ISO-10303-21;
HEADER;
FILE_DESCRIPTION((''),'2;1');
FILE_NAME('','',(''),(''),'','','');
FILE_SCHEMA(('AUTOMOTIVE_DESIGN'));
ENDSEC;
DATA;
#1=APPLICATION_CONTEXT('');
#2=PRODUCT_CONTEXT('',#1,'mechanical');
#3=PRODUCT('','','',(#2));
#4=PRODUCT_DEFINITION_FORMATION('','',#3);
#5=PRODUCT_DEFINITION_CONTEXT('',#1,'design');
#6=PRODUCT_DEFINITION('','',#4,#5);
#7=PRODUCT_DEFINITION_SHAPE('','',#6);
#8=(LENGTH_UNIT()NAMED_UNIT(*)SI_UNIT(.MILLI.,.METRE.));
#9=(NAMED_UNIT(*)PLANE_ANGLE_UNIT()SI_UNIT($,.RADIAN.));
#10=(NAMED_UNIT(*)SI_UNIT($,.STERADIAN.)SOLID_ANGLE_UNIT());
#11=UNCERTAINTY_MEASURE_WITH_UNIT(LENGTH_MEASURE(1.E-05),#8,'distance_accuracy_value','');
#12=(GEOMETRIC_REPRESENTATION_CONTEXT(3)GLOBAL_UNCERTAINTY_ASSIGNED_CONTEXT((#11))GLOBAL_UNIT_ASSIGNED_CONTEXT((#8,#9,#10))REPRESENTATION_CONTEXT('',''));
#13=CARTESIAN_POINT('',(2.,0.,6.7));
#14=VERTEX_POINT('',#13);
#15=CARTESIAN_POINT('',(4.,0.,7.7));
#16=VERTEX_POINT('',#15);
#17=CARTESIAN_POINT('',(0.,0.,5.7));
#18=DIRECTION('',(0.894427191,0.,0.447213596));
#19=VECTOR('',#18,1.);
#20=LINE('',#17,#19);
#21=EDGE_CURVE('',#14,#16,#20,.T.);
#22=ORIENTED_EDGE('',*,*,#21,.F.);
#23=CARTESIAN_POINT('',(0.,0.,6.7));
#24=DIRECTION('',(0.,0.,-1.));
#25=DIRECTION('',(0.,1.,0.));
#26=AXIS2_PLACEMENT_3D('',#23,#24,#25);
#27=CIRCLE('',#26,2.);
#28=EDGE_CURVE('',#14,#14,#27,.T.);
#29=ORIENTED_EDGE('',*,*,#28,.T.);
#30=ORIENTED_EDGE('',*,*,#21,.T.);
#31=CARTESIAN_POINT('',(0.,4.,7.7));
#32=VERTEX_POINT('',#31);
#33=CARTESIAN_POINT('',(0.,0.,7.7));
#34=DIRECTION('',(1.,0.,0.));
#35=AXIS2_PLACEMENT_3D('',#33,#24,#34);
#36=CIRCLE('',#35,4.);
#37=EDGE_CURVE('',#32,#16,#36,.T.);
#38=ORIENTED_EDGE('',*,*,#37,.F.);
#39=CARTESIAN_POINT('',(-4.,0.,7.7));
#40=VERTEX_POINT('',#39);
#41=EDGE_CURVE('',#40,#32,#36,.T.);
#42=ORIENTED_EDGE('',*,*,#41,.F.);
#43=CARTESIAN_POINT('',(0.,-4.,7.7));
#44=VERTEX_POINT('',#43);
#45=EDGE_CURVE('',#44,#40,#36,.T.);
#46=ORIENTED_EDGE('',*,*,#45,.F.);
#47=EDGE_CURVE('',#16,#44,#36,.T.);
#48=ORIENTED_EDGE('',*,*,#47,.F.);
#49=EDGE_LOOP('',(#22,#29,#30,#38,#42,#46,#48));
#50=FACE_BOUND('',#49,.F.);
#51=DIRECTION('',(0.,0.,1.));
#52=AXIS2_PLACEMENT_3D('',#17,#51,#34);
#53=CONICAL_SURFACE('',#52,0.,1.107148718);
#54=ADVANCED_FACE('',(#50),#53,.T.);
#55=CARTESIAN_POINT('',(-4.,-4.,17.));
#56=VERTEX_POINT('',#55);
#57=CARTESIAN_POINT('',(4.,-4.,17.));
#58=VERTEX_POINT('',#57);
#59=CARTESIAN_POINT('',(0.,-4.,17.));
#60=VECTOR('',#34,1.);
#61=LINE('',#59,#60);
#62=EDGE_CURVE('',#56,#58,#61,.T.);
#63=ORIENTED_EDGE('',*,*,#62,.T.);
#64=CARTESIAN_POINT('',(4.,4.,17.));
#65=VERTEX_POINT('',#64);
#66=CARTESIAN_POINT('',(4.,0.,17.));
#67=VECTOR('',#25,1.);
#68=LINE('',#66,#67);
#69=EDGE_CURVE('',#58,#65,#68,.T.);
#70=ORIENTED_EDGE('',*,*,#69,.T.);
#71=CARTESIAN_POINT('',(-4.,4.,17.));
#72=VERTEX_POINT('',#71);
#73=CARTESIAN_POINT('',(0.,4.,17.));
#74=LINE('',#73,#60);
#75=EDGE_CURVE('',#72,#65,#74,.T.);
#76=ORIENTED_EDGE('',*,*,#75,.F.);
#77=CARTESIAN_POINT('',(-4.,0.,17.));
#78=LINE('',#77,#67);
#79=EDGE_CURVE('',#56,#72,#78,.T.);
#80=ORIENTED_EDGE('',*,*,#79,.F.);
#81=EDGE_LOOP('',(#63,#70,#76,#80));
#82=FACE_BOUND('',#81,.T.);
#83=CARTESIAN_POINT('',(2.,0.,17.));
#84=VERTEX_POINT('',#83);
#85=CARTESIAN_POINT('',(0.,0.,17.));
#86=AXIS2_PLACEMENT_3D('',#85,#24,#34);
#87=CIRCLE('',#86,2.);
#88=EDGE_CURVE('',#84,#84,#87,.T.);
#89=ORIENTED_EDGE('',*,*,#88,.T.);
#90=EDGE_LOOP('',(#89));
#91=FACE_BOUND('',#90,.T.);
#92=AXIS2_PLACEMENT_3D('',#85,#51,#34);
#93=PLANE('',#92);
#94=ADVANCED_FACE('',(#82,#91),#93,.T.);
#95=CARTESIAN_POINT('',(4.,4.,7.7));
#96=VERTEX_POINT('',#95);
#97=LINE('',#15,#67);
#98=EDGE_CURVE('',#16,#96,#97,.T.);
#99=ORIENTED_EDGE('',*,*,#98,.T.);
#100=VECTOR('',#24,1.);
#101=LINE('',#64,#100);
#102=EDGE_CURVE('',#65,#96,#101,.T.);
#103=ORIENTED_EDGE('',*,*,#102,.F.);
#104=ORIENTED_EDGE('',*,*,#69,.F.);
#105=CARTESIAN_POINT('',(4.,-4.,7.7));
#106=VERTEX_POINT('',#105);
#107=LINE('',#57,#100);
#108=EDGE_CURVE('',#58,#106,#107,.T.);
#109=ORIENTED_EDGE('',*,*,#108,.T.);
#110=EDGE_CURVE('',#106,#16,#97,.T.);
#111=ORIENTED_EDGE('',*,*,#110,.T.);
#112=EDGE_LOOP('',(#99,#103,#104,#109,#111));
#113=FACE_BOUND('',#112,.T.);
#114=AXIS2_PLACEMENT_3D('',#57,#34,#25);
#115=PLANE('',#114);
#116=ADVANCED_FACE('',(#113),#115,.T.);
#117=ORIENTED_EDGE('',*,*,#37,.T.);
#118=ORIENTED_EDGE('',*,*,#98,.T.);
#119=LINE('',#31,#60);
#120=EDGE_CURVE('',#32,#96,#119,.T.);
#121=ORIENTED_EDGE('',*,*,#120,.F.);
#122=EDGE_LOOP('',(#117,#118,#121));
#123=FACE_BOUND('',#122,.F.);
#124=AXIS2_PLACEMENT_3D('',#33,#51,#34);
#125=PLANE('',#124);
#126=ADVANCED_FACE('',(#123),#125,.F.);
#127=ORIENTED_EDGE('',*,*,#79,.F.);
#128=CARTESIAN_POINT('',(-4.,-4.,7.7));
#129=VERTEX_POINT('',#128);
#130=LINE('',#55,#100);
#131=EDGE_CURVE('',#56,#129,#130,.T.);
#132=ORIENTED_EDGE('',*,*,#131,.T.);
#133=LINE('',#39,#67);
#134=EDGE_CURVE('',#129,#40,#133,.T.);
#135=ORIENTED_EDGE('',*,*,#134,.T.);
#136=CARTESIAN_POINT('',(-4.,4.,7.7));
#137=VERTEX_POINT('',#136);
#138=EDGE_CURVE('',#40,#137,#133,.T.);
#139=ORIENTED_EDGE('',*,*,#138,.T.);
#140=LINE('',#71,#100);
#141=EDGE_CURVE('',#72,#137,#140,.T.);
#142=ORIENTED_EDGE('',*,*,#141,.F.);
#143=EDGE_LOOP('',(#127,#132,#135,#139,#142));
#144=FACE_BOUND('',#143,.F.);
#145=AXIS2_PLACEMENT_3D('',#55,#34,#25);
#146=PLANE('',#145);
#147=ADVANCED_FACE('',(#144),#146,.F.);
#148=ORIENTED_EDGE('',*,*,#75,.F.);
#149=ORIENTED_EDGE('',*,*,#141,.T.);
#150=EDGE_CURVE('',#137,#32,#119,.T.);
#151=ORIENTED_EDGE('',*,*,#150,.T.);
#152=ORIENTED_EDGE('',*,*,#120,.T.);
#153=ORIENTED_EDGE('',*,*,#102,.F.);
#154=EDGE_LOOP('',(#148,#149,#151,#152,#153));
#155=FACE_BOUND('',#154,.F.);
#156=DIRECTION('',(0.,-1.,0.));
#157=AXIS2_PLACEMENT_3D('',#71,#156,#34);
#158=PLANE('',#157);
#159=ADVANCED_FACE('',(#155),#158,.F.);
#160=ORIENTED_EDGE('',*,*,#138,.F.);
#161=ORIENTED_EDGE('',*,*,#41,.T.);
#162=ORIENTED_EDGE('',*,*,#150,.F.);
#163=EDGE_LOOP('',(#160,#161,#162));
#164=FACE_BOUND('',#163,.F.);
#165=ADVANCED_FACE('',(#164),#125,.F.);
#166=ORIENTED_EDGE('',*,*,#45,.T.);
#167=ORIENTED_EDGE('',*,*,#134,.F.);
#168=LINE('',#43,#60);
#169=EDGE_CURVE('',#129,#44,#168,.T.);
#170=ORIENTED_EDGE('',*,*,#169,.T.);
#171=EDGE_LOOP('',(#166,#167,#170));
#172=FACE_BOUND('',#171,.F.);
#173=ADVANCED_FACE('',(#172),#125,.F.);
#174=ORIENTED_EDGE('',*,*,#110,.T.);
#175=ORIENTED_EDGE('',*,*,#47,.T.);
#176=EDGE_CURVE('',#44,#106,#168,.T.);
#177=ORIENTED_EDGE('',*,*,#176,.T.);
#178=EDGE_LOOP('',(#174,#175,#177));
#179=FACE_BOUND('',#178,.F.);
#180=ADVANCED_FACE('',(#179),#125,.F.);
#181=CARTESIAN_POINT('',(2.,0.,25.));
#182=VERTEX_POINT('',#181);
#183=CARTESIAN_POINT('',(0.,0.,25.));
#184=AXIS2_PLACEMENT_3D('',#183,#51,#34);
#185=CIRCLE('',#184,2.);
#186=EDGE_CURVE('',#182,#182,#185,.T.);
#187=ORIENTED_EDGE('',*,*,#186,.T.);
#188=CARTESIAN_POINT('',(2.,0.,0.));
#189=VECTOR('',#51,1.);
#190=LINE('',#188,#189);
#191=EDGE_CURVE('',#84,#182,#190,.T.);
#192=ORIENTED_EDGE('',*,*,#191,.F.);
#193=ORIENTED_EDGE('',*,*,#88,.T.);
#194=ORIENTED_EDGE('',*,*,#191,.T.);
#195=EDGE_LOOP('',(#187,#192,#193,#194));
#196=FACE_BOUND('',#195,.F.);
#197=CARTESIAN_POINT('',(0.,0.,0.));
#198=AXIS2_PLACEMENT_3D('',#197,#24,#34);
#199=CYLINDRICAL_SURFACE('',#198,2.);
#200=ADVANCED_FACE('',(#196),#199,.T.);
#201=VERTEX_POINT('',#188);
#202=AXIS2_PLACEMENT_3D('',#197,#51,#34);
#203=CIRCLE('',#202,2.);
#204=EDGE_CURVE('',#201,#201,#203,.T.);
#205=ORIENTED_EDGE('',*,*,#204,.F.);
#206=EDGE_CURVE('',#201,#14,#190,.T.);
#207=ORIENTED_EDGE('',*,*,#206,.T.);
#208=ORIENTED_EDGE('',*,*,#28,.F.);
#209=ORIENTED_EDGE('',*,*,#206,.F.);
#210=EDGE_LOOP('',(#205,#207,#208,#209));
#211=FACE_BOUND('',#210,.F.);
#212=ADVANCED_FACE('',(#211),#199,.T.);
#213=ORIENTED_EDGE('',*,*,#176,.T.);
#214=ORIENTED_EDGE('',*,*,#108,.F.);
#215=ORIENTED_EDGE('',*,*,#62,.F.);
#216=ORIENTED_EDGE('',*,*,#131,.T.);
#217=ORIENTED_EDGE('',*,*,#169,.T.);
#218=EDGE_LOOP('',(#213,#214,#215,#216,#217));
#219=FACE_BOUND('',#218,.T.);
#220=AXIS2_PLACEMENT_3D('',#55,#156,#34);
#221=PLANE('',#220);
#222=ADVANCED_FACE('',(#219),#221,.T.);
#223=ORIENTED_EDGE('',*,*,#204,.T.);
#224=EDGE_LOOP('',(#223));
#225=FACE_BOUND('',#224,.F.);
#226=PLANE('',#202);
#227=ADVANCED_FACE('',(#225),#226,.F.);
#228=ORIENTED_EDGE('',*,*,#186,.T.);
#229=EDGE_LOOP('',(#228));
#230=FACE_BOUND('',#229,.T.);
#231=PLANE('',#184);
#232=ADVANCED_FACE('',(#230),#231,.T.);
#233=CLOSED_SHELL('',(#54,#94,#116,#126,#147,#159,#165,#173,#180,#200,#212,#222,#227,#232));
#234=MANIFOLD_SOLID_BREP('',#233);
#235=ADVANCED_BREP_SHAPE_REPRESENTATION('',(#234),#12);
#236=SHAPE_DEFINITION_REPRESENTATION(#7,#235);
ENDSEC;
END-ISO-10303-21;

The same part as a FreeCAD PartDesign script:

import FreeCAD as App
import Part
import Sketcher
from FreeCAD import Vector

doc = App.newDocument("Part")
body = doc.addObject("PartDesign::Body", "Body")

sketch1 = doc.addObject("Sketcher::SketchObject", "Sketch")
body.addObject(sketch1)
sketch1.AttachmentSupport = (doc.XY_Plane, [""])
sketch1.MapMode = "FlatFace"
sketch1.addGeometry(Part.Circle(Vector(0, 0, 0), Vector(0, 0, 1), 2), False)
sketch1.addConstraint([
    Sketcher.Constraint("Coincident", 0, 3, -1, 1),
    Sketcher.Constraint("Diameter", 0, 4.0),
])
pad1 = doc.addObject("PartDesign::Pad", "Pad")
body.addObject(pad1)
pad1.Profile = sketch1
pad1.Length = 25

sketch2 = doc.addObject("Sketcher::SketchObject", "Sketch001")
body.addObject(sketch2)
sketch2.AttachmentSupport = (doc.XY_Plane, [""])
sketch2.MapMode = "FlatFace"
sketch2.AttachmentOffset = App.Placement(Vector(0, 0, 17), App.Rotation())
sketch2.addGeometry([
    Part.LineSegment(Vector(-4, 4, 0), Vector(-4, -4, 0)),
    Part.LineSegment(Vector(-4, -4, 0), Vector(4, -4, 0)),
    Part.LineSegment(Vector(4, -4, 0), Vector(4, 4, 0)),
    Part.LineSegment(Vector(4, 4, 0), Vector(-4, 4, 0)),
], False)
sketch2.addConstraint([
    Sketcher.Constraint("Coincident", 0, 2, 1, 1),
    Sketcher.Constraint("Coincident", 1, 2, 2, 1),
    Sketcher.Constraint("Coincident", 2, 2, 3, 1),
    Sketcher.Constraint("Coincident", 3, 2, 0, 1),
    Sketcher.Constraint("Vertical", 0),
    Sketcher.Constraint("Horizontal", 1),
    Sketcher.Constraint("Vertical", 2),
    Sketcher.Constraint("Horizontal", 3),
    Sketcher.Constraint("Symmetric", 0, 2, 2, 2, -1, 1),
    Sketcher.Constraint("Equal", 3, 0),
    Sketcher.Constraint("DistanceX", 1, 1, 1, 2, 8.0),
])
pad2 = doc.addObject("PartDesign::Pad", "Pad001")
body.addObject(pad2)
pad2.Profile = sketch2
pad2.Length = 9.3
pad2.Reversed = True

sketch3 = doc.addObject("Sketcher::SketchObject", "Sketch002")
body.addObject(sketch3)
sketch3.AttachmentSupport = (doc.XZ_Plane, [""])
sketch3.MapMode = "FlatFace"
sketch3.addGeometry([
    Part.LineSegment(Vector(0, 7.7, 0), Vector(0, 5.7, 0)),
    Part.LineSegment(Vector(0, 5.7, 0), Vector(4, 7.7, 0)),
    Part.LineSegment(Vector(4, 7.7, 0), Vector(0, 7.7, 0)),
], False)
sketch3.addConstraint([
    Sketcher.Constraint("Coincident", 0, 2, 1, 1),
    Sketcher.Constraint("Coincident", 1, 2, 2, 1),
    Sketcher.Constraint("Coincident", 2, 2, 0, 1),
    Sketcher.Constraint("Vertical", 0),
    Sketcher.Constraint("Horizontal", 2),
    Sketcher.Constraint("PointOnObject", 0, 2, -2),
    Sketcher.Constraint("DistanceX", 2, 2, 2, 1, 4.0),
    Sketcher.Constraint("DistanceY", 0, 2, 0, 1, 2.0),
    Sketcher.Constraint("DistanceY", -1, 1, 0, 2, 5.7),
])
revolution = doc.addObject("PartDesign::Revolution", "Revolution")
body.addObject(revolution)
revolution.Profile = sketch3
revolution.ReferenceAxis = (sketch3, ["V_Axis"])
revolution.Angle = 360

doc.recompute()
